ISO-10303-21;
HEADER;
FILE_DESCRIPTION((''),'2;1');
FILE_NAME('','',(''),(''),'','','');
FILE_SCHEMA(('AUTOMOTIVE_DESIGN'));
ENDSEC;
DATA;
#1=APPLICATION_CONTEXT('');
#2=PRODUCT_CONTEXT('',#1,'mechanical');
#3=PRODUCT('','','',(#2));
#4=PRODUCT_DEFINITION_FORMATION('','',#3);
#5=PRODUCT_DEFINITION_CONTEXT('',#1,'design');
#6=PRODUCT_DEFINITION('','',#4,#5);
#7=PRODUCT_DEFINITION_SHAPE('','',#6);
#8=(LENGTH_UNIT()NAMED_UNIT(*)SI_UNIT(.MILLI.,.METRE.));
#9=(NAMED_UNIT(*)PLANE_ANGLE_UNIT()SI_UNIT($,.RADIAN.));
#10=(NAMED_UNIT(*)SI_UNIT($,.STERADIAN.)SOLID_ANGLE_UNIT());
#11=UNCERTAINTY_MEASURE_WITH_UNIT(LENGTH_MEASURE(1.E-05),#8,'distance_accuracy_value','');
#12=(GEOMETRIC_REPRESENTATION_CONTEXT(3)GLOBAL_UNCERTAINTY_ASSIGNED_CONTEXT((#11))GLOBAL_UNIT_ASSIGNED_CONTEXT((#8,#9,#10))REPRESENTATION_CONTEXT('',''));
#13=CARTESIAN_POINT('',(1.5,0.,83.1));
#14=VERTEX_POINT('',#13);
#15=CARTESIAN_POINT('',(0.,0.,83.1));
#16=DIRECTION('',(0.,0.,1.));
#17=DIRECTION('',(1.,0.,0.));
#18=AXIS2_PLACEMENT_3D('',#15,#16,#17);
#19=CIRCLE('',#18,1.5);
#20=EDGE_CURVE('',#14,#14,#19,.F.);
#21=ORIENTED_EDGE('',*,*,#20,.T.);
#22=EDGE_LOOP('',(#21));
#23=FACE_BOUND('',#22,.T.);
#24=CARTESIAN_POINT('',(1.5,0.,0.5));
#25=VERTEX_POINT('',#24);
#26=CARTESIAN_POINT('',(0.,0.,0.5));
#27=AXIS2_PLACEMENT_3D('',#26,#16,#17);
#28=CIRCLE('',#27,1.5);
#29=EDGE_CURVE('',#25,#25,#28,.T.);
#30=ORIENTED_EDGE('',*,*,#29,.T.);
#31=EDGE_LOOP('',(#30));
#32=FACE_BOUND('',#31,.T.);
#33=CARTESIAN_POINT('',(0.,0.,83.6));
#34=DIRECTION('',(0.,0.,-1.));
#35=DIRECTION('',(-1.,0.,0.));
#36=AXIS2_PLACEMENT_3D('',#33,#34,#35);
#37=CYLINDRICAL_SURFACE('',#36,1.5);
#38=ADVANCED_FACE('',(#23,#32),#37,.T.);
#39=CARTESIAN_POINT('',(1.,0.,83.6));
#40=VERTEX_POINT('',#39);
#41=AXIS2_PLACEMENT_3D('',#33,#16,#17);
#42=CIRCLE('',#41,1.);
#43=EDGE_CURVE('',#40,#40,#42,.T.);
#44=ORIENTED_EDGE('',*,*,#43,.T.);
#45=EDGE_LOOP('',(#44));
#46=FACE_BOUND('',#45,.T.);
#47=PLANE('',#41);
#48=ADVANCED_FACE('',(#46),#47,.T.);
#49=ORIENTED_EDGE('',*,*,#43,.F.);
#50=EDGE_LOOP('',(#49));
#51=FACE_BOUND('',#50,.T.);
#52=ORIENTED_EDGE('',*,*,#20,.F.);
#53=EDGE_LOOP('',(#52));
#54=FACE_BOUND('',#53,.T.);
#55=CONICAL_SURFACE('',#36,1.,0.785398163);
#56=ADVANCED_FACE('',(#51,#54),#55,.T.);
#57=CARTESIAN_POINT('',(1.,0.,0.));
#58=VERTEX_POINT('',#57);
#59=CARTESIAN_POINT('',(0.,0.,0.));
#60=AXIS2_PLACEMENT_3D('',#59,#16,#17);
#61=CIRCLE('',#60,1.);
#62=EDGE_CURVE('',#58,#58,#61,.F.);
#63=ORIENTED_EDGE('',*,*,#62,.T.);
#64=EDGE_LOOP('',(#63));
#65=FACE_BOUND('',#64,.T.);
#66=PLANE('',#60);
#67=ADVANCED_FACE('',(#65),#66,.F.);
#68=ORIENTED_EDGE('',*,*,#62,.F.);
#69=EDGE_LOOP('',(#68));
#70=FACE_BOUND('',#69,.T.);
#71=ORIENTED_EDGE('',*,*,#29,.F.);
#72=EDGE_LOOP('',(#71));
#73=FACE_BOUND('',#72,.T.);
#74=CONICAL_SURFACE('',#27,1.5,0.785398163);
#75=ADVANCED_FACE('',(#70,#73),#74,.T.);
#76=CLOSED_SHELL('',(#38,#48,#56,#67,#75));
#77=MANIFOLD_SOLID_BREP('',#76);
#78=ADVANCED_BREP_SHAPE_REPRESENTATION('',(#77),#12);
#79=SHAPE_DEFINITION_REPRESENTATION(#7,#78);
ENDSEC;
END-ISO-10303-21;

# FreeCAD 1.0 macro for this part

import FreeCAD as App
import Part
import Sketcher


def edges_at(feature, points):
    """Names of the edges that pass closest to the given points."""
    edges = feature.Shape.Edges
    near = lambda p: min(range(len(edges)), key=lambda i: edges[i].distToShape(Part.Vertex(*p))[0])
    return sorted({f"Edge{near(p) + 1}" for p in points})

doc = App.newDocument("Part")
body = doc.addObject("PartDesign::Body", "Body")

sketch1 = doc.addObject("Sketcher::SketchObject", "Sketch")
body.addObject(sketch1)
sketch1.AttachmentSupport = (doc.XY_Plane, [""])
sketch1.MapMode = "FlatFace"
sketch1.addGeometry(Part.Circle(App.Vector(0, 0, 0), App.Vector(0, 0, 1), 1.5), False)
sketch1.addConstraint([
    Sketcher.Constraint("Coincident", 0, 3, -1, 1),
    Sketcher.Constraint("Diameter", 0, 3.0),
])
pad1 = doc.addObject("PartDesign::Pad", "Pad")
body.addObject(pad1)
pad1.Profile = sketch1
pad1.Length = 83.6
doc.recompute()

chamfer = doc.addObject("PartDesign::Chamfer", "Chamfer")
body.addObject(chamfer)
chamfer.Base = (pad1, edges_at(pad1, [(-1.5, 0, 0), (-1.5, 0, 83.6)]))
chamfer.Size = 0.5

doc.recompute()
